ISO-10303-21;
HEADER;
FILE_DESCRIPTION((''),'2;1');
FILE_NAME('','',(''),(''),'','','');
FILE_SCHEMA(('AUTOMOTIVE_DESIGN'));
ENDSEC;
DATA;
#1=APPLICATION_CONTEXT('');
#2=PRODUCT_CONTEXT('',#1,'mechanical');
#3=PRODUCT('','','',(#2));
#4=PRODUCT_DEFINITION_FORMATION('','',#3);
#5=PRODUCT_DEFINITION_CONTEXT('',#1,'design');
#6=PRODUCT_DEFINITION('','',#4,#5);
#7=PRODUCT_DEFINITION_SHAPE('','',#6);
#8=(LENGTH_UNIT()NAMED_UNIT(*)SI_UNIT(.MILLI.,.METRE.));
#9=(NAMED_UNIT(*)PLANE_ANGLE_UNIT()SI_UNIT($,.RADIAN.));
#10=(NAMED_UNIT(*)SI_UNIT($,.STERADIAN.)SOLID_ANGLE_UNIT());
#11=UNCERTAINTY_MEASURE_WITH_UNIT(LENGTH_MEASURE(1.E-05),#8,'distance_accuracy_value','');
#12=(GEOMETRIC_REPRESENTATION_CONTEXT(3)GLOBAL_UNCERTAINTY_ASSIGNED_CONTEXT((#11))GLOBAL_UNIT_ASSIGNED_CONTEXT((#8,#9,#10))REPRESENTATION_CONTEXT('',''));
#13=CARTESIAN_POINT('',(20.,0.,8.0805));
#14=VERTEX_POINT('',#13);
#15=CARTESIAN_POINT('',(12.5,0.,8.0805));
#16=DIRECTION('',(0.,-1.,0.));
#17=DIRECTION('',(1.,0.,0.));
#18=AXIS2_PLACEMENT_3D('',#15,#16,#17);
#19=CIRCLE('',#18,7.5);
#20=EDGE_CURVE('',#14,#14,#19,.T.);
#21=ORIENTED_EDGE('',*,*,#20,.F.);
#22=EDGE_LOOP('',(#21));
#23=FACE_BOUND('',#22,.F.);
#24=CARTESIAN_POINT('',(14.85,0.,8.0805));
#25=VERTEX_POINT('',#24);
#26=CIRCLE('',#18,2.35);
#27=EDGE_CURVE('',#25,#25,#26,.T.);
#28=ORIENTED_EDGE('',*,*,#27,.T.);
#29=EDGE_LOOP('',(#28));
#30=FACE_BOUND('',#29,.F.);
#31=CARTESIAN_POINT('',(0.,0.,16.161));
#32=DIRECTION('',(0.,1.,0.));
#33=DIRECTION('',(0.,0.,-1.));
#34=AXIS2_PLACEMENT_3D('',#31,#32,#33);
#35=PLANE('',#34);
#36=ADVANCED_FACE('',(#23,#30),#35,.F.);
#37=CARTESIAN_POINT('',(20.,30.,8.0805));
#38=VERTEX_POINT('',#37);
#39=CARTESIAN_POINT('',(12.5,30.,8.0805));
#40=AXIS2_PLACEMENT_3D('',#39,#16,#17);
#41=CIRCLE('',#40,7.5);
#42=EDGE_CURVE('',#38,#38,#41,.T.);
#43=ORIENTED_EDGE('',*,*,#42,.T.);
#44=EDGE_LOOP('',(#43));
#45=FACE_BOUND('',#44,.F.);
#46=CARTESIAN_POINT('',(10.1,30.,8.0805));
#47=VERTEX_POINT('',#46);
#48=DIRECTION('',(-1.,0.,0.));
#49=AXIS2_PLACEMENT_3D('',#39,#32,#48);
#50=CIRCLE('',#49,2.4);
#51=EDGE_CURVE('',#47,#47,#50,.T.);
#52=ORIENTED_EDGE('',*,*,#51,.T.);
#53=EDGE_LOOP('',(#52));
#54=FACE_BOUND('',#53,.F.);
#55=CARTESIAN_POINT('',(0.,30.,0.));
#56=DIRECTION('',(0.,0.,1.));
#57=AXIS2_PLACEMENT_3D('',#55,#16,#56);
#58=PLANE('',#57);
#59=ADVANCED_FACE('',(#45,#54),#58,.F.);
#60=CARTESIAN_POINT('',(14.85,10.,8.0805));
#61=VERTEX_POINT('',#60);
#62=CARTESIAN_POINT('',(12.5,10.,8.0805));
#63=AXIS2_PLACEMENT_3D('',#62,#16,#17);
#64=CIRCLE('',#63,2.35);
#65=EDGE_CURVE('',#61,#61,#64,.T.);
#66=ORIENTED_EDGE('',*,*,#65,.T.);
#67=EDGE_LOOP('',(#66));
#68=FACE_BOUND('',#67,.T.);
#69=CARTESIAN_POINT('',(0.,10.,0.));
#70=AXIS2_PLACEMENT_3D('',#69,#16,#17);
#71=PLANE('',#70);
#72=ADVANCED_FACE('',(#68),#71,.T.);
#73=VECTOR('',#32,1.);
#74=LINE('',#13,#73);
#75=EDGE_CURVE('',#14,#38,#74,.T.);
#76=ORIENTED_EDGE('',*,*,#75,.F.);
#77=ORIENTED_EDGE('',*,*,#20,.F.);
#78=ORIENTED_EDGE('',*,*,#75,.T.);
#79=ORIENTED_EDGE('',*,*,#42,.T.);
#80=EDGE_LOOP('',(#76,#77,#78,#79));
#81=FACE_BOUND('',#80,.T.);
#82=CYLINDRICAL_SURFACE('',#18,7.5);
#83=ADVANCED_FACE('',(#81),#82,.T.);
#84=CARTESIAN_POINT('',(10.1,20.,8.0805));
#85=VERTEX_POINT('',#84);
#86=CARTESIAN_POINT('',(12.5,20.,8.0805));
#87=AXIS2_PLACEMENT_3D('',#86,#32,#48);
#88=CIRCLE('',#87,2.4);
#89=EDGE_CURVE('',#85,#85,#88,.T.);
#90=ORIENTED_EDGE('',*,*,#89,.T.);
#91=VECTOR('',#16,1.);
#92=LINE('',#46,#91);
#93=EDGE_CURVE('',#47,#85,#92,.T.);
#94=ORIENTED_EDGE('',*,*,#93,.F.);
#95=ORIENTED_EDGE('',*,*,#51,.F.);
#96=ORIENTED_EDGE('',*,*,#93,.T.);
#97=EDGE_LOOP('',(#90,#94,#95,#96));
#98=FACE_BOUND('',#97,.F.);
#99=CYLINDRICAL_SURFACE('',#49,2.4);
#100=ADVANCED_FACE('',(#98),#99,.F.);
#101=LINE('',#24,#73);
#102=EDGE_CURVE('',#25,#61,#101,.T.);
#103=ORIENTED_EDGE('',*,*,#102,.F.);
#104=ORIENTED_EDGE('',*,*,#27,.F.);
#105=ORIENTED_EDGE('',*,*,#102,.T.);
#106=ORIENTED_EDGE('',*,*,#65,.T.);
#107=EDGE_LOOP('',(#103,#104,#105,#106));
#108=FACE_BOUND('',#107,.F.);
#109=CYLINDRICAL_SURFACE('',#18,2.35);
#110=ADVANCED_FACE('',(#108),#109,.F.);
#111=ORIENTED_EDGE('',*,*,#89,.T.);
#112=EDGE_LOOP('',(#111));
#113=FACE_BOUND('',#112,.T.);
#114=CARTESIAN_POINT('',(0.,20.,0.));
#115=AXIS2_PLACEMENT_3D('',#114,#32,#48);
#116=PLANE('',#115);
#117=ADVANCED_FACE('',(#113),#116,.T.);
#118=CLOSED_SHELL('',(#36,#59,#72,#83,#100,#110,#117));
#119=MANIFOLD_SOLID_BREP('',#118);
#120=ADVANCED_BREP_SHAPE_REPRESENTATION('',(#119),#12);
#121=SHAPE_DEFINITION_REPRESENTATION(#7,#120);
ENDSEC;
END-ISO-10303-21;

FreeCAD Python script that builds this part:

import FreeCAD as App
import Part
import Sketcher

doc = App.newDocument("Part")
body = doc.addObject("PartDesign::Body", "Body")

sketch1 = body.newObject("Sketcher::SketchObject", "Sketch")
sketch1.AttachmentSupport = (doc.getObject("YZ_Plane"), [""])
sketch1.MapMode = "FlatFace"
sketch1.addGeometry([
    Part.LineSegment(App.Vector(0, 16, 0), App.Vector(0, 0, 0)),
    Part.LineSegment(App.Vector(0, 0, 0), App.Vector(30, 0, 0)),
    Part.LineSegment(App.Vector(30, 0, 0), App.Vector(30, 16, 0)),
    Part.LineSegment(App.Vector(30, 16, 0), App.Vector(0, 16, 0)),
], False)
sketch1.addConstraint([
    Sketcher.Constraint("Coincident", 0, 2, 1, 1),
    Sketcher.Constraint("Coincident", 1, 2, 2, 1),
    Sketcher.Constraint("Coincident", 2, 2, 3, 1),
    Sketcher.Constraint("Coincident", 3, 2, 0, 1),
    Sketcher.Constraint("Vertical", 0),
    Sketcher.Constraint("Horizontal", 1),
    Sketcher.Constraint("Vertical", 2),
    Sketcher.Constraint("Horizontal", 3),
    Sketcher.Constraint("Coincident", 0, 2, -1, 1),
    Sketcher.Constraint("DistanceX", 1, 1, 1, 2, 30.0),
    Sketcher.Constraint("DistanceY", 0, 2, 0, 1, 16.161),
])
pad1 = body.newObject("PartDesign::Pad", "Pad")
pad1.Profile = sketch1
pad1.Length = 25

sketch2 = body.newObject("Sketcher::SketchObject", "Sketch001")
sketch2.AttachmentSupport = (doc.getObject("XZ_Plane"), [""])
sketch2.MapMode = "FlatFace"
sketch2.AttachmentOffset = App.Placement(App.Vector(0, 0, -30), App.Rotation())
sketch2.addGeometry(Part.Circle(App.Vector(12.5, 8.1, 0), App.Vector(0, 0, 1), 2.4), False)
sketch2.addConstraint([
    Sketcher.Constraint("Diameter", 0, 4.8),
    Sketcher.Constraint("DistanceX", -1, 1, 0, 3, 12.5),
    Sketcher.Constraint("DistanceY", -1, 1, 0, 3, 8.0805),
])
pocket1 = body.newObject("PartDesign::Pocket", "Pocket")
pocket1.Profile = sketch2
pocket1.Length = 10
pocket1.Reversed = True

sketch3 = body.newObject("Sketcher::SketchObject", "Sketch002")
sketch3.AttachmentSupport = (doc.getObject("XZ_Plane"), [""])
sketch3.MapMode = "FlatFace"
sketch3.addGeometry(Part.Circle(App.Vector(12.5, 8.1, 0), App.Vector(0, 0, 1), 2.4), False)
sketch3.addConstraint([
    Sketcher.Constraint("Diameter", 0, 4.7),
    Sketcher.Constraint("DistanceX", -1, 1, 0, 3, 12.5),
    Sketcher.Constraint("DistanceY", -1, 1, 0, 3, 8.0805),
])
pocket2 = body.newObject("PartDesign::Pocket", "Pocket001")
pocket2.Profile = sketch3
pocket2.Length = 10

sketch4 = body.newObject("Sketcher::SketchObject", "Sketch003")
sketch4.AttachmentSupport = (doc.getObject("XZ_Plane"), [""])
sketch4.MapMode = "FlatFace"
sketch4.addGeometry([
    Part.LineSegment(App.Vector(25, 16, 0), App.Vector(0, 16, 0)),
    Part.LineSegment(App.Vector(0, 16, 0), App.Vector(0, 0, 0)),
    Part.LineSegment(App.Vector(0, 0, 0), App.Vector(25, 0, 0)),
    Part.LineSegment(App.Vector(25, 0, 0), App.Vector(25, 16, 0)),
    Part.Circle(App.Vector(12, 8, 0), App.Vector(0, 0, 1), 8),
], False)
sketch4.addConstraint([
    Sketcher.Constraint("Coincident", 0, 2, 1, 1),
    Sketcher.Constraint("Coincident", 1, 2, 2, 1),
    Sketcher.Constraint("Coincident", 2, 2, 3, 1),
    Sketcher.Constraint("Coincident", 3, 2, 0, 1),
    Sketcher.Constraint("Horizontal", 0),
    Sketcher.Constraint("Vertical", 1),
    Sketcher.Constraint("Horizontal", 2),
    Sketcher.Constraint("Vertical", 3),
    Sketcher.Constraint("Coincident", 1, 2, -1, 1),
    Sketcher.Constraint("Diameter", 4, 15.0),
    Sketcher.Constraint("DistanceX", 0, 2, 0, 1, 25.0),
    Sketcher.Constraint("DistanceX", -1, 1, 4, 3, 12.5),
    Sketcher.Constraint("DistanceY", 1, 2, 1, 1, 16.161),
    Sketcher.Constraint("DistanceY", -1, 1, 4, 3, 8.0805),
])
pocket3 = body.newObject("PartDesign::Pocket", "Pocket002")
pocket3.Profile = sketch4
pocket3.Length = 45

doc.recompute()
